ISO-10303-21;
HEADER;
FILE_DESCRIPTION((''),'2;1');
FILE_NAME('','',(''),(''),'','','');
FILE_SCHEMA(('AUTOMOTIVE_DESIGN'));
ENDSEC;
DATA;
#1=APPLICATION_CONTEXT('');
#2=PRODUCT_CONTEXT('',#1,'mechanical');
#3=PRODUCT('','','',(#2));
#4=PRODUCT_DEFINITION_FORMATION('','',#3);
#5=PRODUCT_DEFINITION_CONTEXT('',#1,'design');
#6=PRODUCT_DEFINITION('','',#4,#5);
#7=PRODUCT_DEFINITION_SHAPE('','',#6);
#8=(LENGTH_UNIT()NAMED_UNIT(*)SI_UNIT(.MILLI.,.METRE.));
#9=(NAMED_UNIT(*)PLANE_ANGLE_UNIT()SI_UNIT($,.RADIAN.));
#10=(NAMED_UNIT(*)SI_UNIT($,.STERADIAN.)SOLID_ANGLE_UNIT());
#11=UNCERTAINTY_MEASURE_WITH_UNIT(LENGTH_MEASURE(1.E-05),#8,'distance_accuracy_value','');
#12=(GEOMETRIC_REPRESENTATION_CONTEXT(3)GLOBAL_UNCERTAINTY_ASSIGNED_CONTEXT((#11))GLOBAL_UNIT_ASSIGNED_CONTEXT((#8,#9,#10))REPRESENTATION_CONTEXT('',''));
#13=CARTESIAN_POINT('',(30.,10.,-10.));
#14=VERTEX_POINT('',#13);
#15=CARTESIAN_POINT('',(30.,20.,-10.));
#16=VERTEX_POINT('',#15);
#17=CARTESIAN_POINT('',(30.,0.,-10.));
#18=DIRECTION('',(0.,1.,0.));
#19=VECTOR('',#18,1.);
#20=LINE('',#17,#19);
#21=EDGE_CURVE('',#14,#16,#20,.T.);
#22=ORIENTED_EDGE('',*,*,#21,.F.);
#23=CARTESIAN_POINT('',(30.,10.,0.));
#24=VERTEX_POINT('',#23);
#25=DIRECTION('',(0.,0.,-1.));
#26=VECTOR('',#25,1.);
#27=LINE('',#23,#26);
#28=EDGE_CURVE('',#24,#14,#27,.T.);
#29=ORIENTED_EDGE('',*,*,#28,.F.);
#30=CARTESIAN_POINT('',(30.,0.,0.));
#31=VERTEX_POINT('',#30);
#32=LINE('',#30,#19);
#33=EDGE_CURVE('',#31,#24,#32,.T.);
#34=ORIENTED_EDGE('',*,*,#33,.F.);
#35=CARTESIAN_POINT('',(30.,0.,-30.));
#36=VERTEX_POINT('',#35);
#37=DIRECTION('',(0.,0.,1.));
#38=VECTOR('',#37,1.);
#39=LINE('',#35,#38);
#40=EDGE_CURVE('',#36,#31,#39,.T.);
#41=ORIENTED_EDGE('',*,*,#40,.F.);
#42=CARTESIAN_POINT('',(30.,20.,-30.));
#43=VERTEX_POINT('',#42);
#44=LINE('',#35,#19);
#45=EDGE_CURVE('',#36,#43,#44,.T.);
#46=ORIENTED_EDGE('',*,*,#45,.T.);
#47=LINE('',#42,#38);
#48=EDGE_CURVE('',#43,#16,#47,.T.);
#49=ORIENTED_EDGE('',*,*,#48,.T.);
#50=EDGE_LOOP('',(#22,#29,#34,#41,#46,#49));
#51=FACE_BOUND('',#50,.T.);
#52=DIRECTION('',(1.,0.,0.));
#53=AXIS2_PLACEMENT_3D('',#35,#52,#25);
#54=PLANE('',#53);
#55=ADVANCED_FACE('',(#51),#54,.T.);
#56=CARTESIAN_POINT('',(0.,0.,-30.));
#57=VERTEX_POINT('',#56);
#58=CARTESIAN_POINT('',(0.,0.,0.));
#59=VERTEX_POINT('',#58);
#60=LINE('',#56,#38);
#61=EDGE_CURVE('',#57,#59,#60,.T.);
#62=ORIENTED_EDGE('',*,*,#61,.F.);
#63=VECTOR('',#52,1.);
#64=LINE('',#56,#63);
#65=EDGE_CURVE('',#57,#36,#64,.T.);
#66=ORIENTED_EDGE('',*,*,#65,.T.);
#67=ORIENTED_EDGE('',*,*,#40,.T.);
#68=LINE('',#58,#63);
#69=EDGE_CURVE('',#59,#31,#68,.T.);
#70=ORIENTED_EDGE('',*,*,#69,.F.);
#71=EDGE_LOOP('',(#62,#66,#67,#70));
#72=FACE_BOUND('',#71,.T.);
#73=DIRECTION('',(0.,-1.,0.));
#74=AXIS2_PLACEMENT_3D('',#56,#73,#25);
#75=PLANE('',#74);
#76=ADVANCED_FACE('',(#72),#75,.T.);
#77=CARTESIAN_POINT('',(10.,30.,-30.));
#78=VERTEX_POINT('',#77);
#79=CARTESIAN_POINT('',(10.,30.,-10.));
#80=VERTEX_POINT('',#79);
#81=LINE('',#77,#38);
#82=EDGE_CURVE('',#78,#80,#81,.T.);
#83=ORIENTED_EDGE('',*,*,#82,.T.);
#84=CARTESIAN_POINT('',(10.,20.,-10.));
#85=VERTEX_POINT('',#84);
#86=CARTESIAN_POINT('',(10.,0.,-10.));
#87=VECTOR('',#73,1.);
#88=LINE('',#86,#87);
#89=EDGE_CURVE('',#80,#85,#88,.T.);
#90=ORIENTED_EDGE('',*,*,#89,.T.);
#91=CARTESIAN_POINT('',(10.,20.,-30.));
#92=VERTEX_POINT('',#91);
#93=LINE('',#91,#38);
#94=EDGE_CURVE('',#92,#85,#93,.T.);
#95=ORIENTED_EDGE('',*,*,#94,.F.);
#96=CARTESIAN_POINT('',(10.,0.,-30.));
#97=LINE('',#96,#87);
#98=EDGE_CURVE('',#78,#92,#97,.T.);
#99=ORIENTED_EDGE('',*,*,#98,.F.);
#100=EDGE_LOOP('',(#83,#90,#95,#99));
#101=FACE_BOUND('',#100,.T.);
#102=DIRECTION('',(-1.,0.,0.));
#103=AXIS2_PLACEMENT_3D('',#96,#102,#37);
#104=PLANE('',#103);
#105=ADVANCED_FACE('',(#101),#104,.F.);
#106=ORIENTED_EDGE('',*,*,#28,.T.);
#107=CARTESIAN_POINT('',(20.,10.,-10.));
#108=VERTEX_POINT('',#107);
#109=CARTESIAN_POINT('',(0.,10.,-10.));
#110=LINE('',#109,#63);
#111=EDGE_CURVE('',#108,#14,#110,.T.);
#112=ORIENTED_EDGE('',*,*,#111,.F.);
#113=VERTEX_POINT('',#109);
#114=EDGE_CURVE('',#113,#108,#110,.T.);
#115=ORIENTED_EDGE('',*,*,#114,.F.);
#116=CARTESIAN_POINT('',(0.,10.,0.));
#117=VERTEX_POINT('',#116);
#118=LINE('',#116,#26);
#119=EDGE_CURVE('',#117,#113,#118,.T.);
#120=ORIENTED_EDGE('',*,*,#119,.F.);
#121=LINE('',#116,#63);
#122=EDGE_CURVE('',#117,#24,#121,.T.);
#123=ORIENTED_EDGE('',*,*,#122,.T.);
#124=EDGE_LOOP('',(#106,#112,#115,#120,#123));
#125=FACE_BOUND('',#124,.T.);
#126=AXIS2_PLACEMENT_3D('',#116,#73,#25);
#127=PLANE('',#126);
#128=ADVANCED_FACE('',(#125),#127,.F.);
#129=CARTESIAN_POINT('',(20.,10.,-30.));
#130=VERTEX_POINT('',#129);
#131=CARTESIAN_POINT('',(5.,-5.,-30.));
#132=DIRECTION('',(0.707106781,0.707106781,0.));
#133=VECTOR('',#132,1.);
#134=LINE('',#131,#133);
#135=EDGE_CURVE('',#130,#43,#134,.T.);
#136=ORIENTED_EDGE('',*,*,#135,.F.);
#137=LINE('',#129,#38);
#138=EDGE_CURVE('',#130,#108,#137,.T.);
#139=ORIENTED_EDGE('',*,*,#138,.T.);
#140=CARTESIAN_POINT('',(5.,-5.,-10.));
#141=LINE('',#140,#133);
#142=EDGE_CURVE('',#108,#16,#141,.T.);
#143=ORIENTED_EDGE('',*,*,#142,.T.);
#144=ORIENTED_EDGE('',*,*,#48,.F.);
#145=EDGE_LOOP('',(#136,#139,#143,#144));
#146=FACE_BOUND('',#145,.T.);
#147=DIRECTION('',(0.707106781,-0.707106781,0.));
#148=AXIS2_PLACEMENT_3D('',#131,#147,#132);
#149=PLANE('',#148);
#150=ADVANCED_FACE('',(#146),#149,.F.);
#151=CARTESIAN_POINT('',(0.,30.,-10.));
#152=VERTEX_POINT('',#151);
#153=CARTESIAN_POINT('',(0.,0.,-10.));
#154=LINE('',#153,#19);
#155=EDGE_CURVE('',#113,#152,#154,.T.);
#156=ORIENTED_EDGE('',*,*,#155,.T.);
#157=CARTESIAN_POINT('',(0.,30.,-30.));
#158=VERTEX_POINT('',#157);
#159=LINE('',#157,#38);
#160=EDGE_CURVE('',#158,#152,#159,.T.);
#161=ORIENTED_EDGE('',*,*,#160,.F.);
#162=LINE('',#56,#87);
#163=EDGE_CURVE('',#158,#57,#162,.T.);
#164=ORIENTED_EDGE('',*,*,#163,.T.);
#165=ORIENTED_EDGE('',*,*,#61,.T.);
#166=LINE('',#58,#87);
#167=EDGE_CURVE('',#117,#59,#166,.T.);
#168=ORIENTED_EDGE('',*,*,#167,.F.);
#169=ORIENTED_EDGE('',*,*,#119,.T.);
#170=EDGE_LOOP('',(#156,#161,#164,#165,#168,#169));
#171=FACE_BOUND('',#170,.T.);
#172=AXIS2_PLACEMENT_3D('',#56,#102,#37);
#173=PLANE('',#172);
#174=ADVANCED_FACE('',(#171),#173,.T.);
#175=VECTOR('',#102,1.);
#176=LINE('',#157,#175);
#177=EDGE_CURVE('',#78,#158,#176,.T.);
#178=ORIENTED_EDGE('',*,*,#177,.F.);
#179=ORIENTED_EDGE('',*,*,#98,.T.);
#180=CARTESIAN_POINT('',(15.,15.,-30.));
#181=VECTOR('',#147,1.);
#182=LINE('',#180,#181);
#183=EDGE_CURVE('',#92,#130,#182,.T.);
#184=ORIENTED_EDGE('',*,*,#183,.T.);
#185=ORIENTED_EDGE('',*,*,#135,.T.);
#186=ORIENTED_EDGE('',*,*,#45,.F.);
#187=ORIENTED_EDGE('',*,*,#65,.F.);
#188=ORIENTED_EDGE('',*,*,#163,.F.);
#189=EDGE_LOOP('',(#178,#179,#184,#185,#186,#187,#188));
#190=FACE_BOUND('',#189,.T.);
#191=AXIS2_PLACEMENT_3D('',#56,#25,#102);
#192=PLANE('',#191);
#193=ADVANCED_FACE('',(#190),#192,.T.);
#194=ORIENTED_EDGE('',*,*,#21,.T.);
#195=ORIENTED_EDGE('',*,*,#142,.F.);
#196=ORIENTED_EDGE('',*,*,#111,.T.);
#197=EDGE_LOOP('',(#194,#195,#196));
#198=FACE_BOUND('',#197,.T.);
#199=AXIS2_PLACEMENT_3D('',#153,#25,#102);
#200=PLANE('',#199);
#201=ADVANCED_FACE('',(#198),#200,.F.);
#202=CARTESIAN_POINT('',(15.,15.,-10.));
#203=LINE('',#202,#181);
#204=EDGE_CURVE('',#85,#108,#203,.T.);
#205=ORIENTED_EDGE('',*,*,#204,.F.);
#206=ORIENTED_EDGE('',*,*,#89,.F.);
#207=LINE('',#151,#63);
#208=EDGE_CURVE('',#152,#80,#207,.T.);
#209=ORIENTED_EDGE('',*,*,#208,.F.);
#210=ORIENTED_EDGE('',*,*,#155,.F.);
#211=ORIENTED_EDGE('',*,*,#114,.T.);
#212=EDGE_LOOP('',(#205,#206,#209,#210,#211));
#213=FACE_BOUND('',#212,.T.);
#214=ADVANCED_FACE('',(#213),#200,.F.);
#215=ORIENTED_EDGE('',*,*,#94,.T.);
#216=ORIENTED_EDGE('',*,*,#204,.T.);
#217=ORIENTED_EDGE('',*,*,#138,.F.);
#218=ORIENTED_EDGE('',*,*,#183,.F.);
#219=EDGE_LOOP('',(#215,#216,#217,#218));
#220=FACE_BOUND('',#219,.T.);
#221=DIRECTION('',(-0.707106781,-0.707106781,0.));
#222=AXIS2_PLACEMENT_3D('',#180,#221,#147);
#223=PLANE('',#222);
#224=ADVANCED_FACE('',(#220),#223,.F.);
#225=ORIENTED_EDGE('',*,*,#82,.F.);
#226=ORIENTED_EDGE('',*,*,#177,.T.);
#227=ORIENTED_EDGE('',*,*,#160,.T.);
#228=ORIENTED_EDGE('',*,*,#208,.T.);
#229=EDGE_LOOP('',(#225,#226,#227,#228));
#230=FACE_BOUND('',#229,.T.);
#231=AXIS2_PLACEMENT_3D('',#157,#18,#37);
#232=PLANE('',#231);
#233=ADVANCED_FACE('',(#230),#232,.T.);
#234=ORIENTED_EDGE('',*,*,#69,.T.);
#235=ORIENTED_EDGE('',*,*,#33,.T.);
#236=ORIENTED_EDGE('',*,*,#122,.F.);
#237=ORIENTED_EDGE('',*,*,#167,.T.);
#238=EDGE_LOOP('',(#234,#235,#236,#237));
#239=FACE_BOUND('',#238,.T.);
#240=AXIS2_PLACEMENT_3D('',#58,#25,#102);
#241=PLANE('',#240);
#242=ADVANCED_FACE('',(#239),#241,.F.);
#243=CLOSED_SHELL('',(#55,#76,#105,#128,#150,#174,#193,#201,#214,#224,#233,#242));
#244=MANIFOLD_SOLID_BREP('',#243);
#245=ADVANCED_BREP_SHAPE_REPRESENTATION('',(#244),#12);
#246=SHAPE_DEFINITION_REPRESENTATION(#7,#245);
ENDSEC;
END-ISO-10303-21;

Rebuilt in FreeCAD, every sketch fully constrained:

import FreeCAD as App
import Part
import Sketcher
Q = App.Units.Quantity


def add_polygon(sketch, points):
    """Adds a closed chain of lines whose ends are joined by coincident constraints."""
    first, n = sketch.GeometryCount, len(points)
    for a, b in zip(points, points[1:] + points[:1]):
        sketch.addGeometry(Part.LineSegment(App.Vector(*a, 0), App.Vector(*b, 0)), False)
    for i in range(n):
        sketch.addConstraint(Sketcher.Constraint("Coincident", first + i, 2, first + (i + 1) % n, 1))

doc = App.newDocument("Part")
params = doc.addObject("Spreadsheet::Sheet", "Params")
for row, (alias, value) in enumerate([
    ("sketch1_width", "30 mm"),
    ("pad1_length", "30 mm"),
    ("sketch2_width", "20 mm"),
    ("sketch2_height", "10 mm"),
    ("sketch3_width", "20 mm"),
    ("sketch3_height", "10 mm"),
], start=1):
    params.set(f"A{row}", alias)
    params.set(f"B{row}", "=" + value)
    params.setAlias(f"B{row}", alias)

body = doc.addObject("PartDesign::Body", "Body")

# Sketch on XY plane
sketch1 = doc.addObject("Sketcher::SketchObject", "Sketch")
body.addObject(sketch1)
sketch1.AttachmentSupport = (doc.XY_Plane, [""])
sketch1.MapMode = "FlatFace"
add_polygon(sketch1, [(0, 30), (0, 0), (30, 0), (30, 30)])  # lines 0-3
sketch1.addConstraint(Sketcher.Constraint("Vertical", 0))
sketch1.addConstraint(Sketcher.Constraint("Horizontal", 1))
sketch1.addConstraint(Sketcher.Constraint("Vertical", 2))
sketch1.addConstraint(Sketcher.Constraint("Horizontal", 3))
sketch1.addConstraint(Sketcher.Constraint("Coincident", 0, 2, -1, 1))
sketch1.addConstraint(Sketcher.Constraint("Equal", 3, 0))
sketch1.addConstraint(Sketcher.Constraint("DistanceX", 1, 1, 1, 2, Q("30 mm")))
sketch1.setExpression("Constraints[10]", "Params.sketch1_width")
pad1 = doc.addObject("PartDesign::Pad", "Pad")
body.addObject(pad1)
pad1.Profile = sketch1
pad1.setExpression("Length", "Params.pad1_length")
pad1.Reversed = True

# Sketch on XY plane
sketch2 = doc.addObject("Sketcher::SketchObject", "Sketch001")
body.addObject(sketch2)
sketch2.AttachmentSupport = (doc.XY_Plane, [""])
sketch2.MapMode = "FlatFace"
add_polygon(sketch2, [(10, 30), (10, 20), (20, 10), (30, 20), (30, 30)])  # lines 0-4
sketch2.addConstraint(Sketcher.Constraint("Vertical", 0))
sketch2.addConstraint(Sketcher.Constraint("Vertical", 3))
sketch2.addConstraint(Sketcher.Constraint("Horizontal", 4))
sketch2.addConstraint(Sketcher.Constraint("Perpendicular", 1, 2))
sketch2.addConstraint(Sketcher.Constraint("Horizontal", 0, 2, 2, 2))
sketch2.addConstraint(Sketcher.Constraint("Equal", 1, 2))
sketch2.addConstraint(Sketcher.Constraint("DistanceX", 4, 2, 4, 1, Q("20 mm")))
sketch2.addConstraint(Sketcher.Constraint("DistanceY", 0, 2, 0, 1, Q("10 mm")))
sketch2.addConstraint(Sketcher.Constraint("DistanceX", -1, 1, 0, 2, Q("10 mm")))
sketch2.addConstraint(Sketcher.Constraint("DistanceY", -1, 1, 0, 2, Q("20 mm")))
sketch2.setExpression("Constraints[11]", "Params.sketch2_width")
sketch2.setExpression("Constraints[12]", "Params.sketch2_height")
pocket1 = doc.addObject("PartDesign::Pocket", "Pocket")
body.addObject(pocket1)
pocket1.Profile = sketch2
pocket1.Type = "ThroughAll"

# Sketch on YZ plane
sketch3 = doc.addObject("Sketcher::SketchObject", "Sketch002")
body.addObject(sketch3)
sketch3.AttachmentSupport = (doc.YZ_Plane, [""])
sketch3.MapMode = "FlatFace"
sketch3.AttachmentOffset = App.Placement(App.Vector(0, 0, 30), App.Rotation())
add_polygon(sketch3, [(30, 0), (10, 0), (10, -10), (30, -10)])  # lines 0-3
sketch3.addConstraint(Sketcher.Constraint("Horizontal", 0))
sketch3.addConstraint(Sketcher.Constraint("Vertical", 1))
sketch3.addConstraint(Sketcher.Constraint("Horizontal", 2))
sketch3.addConstraint(Sketcher.Constraint("Vertical", 3))
sketch3.addConstraint(Sketcher.Constraint("PointOnObject", 0, 2, -1))
sketch3.addConstraint(Sketcher.Constraint("DistanceX", 0, 2, 0, 1, Q("20 mm")))
sketch3.addConstraint(Sketcher.Constraint("DistanceY", 1, 2, 1, 1, Q("10 mm")))
sketch3.addConstraint(Sketcher.Constraint("DistanceX", -1, 1, 0, 2, Q("10 mm")))
sketch3.setExpression("Constraints[9]", "Params.sketch3_width")
sketch3.setExpression("Constraints[10]", "Params.sketch3_height")
pocket2 = doc.addObject("PartDesign::Pocket", "Pocket001")
body.addObject(pocket2)
pocket2.Profile = sketch3
pocket2.Type = "ThroughAll"

doc.recompute()
